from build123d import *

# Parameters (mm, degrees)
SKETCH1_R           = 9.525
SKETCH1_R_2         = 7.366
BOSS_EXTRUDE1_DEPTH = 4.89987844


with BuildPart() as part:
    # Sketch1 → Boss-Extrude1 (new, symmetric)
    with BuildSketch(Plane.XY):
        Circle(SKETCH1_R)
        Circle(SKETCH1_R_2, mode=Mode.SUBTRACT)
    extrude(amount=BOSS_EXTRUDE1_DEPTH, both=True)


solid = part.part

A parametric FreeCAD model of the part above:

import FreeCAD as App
import Part
import Sketcher

V = App.Vector
Q = App.Units.Quantity

doc = App.newDocument("Part")
body = doc.addObject("PartDesign::Body", "Body")

sketch1 = body.newObject("Sketcher::SketchObject", "Sketch")
sketch1.AttachmentSupport = (doc.getObject("XY_Plane"), [""])
sketch1.MapMode = "FlatFace"
sketch1.addGeometry([
    Part.Circle(V(0, 0, 0), V(0, 0, 1), 10),
    Part.Circle(V(0, 0, 0), V(0, 0, 1), 7),
], False)
sketch1.addConstraint([
    Sketcher.Constraint("Coincident", 0, 3, -1, 1),
    Sketcher.Constraint("Coincident", 1, 3, -1, 1),
    Sketcher.Constraint("Diameter", 0, Q("0.75 in")),
    Sketcher.Constraint("Diameter", 1, Q("0.58 in")),
])
pad1 = body.newObject("PartDesign::Pad", "Pad")
pad1.Profile = sketch1
pad1.Length = 9.799757
pad1.Midplane = True

doc.recompute()
